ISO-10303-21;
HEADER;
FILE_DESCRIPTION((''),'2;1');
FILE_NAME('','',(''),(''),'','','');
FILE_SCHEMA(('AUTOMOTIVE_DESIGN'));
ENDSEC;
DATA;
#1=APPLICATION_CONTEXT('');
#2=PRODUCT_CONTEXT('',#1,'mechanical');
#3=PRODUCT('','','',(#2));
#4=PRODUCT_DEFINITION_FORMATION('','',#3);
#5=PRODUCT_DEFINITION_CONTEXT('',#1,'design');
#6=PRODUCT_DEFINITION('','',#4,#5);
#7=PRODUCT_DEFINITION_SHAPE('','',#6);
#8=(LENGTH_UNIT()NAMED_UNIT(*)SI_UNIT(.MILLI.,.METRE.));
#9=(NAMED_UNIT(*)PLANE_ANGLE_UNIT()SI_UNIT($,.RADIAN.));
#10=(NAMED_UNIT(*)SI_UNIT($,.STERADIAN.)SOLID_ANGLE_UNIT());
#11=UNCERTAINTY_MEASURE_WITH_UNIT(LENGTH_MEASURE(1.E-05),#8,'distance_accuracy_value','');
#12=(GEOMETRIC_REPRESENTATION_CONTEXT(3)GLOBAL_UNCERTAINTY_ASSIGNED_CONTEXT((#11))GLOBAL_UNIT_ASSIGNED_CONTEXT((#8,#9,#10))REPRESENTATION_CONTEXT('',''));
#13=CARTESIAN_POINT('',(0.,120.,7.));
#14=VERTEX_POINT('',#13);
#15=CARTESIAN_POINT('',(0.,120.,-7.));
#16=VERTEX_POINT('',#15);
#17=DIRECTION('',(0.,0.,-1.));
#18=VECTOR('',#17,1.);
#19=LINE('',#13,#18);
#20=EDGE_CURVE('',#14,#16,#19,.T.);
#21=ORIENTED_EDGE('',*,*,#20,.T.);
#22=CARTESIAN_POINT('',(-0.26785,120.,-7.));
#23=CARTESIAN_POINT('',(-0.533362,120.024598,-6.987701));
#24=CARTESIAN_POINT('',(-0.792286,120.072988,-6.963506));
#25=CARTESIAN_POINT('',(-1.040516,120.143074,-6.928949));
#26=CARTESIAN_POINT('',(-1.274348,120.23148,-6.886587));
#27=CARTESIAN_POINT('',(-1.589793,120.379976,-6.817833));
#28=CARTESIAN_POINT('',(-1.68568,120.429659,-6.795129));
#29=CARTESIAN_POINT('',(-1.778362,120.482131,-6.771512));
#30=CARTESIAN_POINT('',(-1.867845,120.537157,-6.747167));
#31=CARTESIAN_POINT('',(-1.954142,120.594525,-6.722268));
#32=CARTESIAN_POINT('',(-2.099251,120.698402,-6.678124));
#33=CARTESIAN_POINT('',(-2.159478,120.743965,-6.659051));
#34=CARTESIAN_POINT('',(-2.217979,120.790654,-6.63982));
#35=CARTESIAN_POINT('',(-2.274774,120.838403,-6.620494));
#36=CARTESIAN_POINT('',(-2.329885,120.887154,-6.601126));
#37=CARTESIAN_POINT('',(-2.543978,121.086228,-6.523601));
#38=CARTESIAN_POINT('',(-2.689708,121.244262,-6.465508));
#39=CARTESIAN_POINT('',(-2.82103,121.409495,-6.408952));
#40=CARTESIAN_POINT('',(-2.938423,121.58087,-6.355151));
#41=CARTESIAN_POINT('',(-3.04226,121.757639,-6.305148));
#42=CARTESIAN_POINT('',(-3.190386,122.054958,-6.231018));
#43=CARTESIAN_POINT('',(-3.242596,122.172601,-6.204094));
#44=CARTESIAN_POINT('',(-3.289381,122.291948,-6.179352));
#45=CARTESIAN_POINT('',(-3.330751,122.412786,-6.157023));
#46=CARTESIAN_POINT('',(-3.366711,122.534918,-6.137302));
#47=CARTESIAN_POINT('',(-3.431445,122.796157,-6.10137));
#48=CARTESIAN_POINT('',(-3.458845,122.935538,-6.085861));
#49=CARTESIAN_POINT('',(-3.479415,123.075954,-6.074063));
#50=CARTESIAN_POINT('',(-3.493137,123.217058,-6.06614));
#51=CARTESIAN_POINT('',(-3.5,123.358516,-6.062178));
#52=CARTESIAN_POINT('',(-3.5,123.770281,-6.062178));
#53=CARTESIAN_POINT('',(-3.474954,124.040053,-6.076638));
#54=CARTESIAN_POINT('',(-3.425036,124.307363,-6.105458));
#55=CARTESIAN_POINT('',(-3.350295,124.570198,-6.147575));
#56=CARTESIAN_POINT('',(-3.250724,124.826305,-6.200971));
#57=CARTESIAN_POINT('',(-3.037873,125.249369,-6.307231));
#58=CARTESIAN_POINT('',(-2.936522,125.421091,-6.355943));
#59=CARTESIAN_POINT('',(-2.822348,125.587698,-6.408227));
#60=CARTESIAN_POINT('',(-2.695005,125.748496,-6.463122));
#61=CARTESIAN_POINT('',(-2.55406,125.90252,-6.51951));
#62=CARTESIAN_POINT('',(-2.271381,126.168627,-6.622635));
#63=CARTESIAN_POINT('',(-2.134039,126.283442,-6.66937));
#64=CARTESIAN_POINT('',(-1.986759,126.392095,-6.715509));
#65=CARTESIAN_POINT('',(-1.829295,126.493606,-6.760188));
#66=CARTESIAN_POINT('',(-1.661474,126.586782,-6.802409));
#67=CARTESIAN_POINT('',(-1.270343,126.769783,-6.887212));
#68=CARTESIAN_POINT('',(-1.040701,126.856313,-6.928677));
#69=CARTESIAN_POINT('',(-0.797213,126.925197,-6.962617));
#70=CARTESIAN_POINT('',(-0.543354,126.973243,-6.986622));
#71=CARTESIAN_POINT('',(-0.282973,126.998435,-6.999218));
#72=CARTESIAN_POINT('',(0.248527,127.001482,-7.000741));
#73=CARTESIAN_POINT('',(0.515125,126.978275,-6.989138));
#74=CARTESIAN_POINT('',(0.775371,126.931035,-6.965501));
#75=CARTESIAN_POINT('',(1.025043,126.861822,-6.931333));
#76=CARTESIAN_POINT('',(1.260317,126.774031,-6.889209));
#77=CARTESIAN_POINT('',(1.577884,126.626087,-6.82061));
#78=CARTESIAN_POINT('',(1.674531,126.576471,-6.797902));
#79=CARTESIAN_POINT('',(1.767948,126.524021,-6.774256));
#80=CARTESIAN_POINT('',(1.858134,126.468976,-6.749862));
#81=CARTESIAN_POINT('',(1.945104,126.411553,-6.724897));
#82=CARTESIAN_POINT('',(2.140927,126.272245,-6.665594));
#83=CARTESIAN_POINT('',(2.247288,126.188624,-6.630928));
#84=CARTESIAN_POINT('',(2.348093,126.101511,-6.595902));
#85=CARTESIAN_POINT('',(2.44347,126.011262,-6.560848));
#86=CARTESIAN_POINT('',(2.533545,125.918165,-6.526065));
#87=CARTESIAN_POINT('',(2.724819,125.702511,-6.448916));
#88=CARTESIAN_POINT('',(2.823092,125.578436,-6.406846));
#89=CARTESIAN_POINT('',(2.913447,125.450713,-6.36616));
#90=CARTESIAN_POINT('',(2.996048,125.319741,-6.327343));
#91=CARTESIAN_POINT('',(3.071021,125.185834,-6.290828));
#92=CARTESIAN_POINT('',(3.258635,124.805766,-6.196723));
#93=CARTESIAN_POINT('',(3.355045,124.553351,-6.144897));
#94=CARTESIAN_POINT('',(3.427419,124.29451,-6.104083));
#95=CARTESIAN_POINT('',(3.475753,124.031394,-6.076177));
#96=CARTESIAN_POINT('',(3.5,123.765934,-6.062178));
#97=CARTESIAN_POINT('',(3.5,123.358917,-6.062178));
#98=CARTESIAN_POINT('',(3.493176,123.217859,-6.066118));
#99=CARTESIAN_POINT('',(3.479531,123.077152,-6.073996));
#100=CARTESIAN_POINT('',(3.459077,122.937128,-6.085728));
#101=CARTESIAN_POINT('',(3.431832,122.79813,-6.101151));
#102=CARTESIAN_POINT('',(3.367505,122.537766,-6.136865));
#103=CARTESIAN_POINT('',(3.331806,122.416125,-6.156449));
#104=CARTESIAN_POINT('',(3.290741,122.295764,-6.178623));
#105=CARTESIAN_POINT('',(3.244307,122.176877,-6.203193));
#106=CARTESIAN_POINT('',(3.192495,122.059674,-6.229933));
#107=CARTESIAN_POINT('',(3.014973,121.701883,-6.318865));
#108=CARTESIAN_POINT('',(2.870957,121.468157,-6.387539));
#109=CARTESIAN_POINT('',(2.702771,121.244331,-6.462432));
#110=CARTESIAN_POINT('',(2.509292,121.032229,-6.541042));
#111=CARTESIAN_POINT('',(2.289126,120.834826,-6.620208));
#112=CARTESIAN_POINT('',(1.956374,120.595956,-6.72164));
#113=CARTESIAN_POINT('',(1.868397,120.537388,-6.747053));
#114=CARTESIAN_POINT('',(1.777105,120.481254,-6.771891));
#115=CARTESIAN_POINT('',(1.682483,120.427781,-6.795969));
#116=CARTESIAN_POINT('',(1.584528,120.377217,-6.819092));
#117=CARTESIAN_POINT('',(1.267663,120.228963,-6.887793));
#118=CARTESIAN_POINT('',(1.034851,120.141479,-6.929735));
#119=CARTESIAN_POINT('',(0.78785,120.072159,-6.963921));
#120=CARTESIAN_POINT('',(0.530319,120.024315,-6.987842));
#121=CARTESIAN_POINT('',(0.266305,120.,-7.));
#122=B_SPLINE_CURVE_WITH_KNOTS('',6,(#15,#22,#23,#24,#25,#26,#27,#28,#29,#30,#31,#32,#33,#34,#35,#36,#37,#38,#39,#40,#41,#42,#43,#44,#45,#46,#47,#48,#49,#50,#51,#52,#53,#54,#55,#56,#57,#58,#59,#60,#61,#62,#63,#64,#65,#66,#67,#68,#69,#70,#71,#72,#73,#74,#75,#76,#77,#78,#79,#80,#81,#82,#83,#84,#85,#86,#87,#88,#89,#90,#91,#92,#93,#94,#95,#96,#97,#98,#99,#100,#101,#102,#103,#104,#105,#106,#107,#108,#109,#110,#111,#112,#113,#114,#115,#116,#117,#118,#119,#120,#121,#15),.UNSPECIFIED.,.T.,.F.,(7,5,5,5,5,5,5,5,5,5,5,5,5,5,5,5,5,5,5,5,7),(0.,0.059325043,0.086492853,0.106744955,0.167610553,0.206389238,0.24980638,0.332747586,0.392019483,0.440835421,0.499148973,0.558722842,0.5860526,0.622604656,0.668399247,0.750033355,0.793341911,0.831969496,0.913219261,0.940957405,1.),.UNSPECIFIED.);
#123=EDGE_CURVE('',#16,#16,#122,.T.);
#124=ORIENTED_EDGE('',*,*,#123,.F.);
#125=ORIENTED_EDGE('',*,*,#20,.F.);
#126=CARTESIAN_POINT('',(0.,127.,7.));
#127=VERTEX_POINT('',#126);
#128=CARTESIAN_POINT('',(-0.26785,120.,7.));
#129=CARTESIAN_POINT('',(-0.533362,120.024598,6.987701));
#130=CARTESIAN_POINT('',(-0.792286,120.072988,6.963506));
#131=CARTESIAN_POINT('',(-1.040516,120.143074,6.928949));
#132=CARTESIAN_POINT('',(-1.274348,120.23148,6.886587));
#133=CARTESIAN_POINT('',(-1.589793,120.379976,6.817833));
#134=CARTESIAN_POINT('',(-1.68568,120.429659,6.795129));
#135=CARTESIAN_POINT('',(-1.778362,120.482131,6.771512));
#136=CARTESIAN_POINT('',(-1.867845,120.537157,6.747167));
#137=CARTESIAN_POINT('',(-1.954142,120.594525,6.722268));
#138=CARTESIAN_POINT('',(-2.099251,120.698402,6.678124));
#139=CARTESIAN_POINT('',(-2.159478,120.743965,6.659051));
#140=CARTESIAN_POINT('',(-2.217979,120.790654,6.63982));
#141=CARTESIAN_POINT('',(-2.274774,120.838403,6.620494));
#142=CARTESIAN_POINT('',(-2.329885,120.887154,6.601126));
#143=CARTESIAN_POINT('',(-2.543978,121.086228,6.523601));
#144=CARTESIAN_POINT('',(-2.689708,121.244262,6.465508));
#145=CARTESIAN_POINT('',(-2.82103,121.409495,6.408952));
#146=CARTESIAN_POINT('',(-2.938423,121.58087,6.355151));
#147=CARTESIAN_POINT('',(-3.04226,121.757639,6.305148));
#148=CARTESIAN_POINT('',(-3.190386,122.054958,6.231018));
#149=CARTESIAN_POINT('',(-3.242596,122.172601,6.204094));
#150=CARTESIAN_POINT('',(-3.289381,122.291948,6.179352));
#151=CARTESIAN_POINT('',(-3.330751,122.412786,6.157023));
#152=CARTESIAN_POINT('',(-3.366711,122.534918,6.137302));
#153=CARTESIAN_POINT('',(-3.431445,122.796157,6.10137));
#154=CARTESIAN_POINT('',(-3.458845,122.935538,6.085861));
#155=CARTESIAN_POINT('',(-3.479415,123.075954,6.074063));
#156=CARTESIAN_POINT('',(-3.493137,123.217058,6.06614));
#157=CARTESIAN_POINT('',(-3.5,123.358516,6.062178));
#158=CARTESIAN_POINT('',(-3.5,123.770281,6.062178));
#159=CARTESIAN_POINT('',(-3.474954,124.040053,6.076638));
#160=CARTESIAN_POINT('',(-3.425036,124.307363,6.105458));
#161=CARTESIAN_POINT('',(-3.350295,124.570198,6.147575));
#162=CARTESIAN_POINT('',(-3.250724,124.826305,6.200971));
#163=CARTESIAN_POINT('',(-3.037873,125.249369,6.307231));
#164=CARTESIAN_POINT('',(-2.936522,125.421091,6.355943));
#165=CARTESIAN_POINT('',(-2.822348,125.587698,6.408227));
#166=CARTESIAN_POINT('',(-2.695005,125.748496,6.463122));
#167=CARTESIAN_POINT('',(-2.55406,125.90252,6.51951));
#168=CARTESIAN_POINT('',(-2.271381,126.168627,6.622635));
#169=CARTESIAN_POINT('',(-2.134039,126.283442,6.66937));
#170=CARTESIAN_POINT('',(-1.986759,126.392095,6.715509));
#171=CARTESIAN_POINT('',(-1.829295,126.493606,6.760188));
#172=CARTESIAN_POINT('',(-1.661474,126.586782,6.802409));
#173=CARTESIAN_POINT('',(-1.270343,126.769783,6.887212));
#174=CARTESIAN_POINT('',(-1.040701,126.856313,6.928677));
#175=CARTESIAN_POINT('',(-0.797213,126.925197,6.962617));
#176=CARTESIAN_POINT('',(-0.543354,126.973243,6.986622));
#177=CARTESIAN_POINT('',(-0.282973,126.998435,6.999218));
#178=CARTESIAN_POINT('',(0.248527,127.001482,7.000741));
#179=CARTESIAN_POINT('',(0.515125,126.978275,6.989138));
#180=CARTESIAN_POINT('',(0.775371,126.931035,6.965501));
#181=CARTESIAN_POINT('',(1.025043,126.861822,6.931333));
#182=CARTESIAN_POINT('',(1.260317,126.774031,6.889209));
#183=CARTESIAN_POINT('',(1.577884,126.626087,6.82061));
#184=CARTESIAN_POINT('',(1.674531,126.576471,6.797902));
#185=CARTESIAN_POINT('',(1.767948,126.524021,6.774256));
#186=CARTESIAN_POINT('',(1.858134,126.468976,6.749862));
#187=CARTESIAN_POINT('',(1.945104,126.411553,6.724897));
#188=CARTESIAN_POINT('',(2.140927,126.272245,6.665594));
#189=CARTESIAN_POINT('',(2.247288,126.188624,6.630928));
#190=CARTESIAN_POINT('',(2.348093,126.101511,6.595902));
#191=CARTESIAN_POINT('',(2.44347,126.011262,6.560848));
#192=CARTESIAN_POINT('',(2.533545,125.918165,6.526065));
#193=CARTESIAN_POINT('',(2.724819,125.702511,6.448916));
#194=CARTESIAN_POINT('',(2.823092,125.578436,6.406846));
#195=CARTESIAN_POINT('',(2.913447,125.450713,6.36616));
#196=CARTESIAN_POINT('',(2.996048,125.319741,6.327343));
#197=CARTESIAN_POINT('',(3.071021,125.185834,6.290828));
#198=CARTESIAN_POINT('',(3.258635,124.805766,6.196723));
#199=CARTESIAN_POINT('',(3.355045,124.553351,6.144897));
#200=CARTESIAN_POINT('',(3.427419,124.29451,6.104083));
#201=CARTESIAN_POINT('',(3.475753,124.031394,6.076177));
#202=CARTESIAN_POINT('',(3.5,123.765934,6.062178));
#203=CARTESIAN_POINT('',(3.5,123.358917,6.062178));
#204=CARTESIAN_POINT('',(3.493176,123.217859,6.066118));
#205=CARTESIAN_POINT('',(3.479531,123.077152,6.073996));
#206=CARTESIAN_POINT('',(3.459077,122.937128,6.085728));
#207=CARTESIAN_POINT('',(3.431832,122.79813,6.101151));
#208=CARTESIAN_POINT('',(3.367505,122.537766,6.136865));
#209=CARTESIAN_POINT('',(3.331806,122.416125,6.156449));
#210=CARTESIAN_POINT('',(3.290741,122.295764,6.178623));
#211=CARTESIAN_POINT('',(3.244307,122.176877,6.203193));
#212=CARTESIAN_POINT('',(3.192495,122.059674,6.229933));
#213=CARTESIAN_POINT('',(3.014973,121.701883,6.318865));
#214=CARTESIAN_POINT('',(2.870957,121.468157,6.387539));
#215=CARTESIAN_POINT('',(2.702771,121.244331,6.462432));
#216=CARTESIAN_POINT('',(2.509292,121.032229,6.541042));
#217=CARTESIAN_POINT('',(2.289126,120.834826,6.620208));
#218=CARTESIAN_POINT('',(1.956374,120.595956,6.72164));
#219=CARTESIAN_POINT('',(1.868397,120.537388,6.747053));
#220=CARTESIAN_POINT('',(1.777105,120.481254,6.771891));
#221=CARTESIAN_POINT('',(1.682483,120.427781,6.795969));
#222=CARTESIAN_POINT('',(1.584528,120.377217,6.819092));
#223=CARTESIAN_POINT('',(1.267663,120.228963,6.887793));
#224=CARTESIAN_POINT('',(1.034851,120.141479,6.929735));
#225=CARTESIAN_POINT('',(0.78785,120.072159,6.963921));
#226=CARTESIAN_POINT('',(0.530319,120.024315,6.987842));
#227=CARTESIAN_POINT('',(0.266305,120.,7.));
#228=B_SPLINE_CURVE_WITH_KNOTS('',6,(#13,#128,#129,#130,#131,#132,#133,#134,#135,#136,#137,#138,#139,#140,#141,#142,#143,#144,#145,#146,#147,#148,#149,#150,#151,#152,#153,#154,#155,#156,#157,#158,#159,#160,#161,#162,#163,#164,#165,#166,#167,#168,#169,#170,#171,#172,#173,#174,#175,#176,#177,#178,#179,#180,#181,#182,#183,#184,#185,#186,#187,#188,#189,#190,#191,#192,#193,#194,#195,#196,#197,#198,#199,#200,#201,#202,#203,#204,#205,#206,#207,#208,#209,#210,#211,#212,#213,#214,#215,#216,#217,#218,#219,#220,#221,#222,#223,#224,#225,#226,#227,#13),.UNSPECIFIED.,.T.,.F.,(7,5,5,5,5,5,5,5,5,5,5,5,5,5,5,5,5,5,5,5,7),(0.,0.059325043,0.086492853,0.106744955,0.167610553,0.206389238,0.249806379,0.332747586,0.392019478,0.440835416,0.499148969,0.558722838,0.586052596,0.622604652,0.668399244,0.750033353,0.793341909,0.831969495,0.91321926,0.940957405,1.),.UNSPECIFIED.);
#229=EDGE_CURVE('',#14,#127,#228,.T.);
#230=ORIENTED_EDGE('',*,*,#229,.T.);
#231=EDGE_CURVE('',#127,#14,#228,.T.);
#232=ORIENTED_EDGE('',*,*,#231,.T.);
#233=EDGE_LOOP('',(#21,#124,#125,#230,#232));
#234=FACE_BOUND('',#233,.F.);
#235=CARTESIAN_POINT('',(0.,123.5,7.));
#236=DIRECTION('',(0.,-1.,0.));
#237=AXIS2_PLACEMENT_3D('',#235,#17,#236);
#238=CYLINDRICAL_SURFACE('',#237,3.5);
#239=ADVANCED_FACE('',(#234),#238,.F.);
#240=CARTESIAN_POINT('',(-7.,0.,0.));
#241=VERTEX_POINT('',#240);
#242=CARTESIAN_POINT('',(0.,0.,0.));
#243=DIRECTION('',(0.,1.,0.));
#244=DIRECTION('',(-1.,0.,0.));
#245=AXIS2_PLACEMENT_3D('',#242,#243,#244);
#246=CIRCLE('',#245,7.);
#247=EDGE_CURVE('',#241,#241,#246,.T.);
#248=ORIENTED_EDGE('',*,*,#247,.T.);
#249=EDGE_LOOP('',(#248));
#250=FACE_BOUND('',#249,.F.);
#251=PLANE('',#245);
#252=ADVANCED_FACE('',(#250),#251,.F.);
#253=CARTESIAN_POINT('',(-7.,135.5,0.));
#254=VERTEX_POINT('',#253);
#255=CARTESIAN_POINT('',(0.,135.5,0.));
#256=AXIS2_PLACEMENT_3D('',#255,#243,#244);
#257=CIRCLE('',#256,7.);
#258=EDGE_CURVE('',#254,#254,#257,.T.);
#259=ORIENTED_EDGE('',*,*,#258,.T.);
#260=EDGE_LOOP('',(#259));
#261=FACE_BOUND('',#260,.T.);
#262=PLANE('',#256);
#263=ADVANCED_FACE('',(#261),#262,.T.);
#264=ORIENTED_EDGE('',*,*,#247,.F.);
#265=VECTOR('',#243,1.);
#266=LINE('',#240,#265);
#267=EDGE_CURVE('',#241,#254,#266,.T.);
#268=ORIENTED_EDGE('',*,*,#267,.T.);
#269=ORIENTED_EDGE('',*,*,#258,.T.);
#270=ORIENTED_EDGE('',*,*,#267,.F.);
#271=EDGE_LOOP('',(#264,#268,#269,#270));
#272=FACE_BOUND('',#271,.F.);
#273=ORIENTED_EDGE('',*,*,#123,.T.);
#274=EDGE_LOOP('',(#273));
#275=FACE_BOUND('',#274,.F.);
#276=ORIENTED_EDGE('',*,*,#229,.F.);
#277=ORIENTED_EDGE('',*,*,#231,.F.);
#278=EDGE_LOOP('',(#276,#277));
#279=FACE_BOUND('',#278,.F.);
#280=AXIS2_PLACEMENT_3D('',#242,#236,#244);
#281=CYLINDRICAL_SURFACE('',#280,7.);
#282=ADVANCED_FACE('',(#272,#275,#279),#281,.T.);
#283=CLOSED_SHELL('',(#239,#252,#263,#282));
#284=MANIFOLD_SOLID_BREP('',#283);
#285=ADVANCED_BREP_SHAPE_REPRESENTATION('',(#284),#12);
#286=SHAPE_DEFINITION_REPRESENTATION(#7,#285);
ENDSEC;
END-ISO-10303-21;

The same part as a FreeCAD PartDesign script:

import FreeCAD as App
import Part
import Sketcher

V = App.Vector
Q = App.Units.Quantity

doc = App.newDocument("Part")
body = doc.addObject("PartDesign::Body", "Body")

# Sketch on XZ plane
sketch1 = body.newObject("Sketcher::SketchObject", "Sketch")
sketch1.AttachmentSupport = (doc.getObject("XZ_Plane"), [""])
sketch1.MapMode = "FlatFace"
sketch1.addGeometry(Part.Circle(V(0, 0, 0), V(0, 0, 1), 7), False)
sketch1.addConstraint([
    Sketcher.Constraint("Coincident", 0, 3, -1, 1),
    Sketcher.Constraint("Diameter", 0, Q("14 mm")),
])
pad1 = body.newObject("PartDesign::Pad", "Pad")
pad1.Profile = sketch1
pad1.Length = 135.5
pad1.Reversed = True

# Sketch on XY plane
sketch2 = body.newObject("Sketcher::SketchObject", "Sketch001")
sketch2.AttachmentSupport = (doc.getObject("XY_Plane"), [""])
sketch2.MapMode = "FlatFace"
sketch2.AttachmentOffset = App.Placement(V(0, 0, 7), App.Rotation())
sketch2.addGeometry(Part.Circle(V(0, 123.5, 0), V(0, 0, 1), 3.5), False)
sketch2.addConstraint([
    Sketcher.Constraint("PointOnObject", 0, 3, -2),
    Sketcher.Constraint("Diameter", 0, Q("7 mm")),
    Sketcher.Constraint("DistanceY", -1, 1, 0, 3, Q("123.5 mm")),
])
doc.recompute()
hole = body.newObject("PartDesign::Hole", "Hole")
hole.Profile = sketch2
hole.ThreadType = "None"
hole.Diameter = 7
hole.DepthType = "ThroughAll"

doc.recompute()
